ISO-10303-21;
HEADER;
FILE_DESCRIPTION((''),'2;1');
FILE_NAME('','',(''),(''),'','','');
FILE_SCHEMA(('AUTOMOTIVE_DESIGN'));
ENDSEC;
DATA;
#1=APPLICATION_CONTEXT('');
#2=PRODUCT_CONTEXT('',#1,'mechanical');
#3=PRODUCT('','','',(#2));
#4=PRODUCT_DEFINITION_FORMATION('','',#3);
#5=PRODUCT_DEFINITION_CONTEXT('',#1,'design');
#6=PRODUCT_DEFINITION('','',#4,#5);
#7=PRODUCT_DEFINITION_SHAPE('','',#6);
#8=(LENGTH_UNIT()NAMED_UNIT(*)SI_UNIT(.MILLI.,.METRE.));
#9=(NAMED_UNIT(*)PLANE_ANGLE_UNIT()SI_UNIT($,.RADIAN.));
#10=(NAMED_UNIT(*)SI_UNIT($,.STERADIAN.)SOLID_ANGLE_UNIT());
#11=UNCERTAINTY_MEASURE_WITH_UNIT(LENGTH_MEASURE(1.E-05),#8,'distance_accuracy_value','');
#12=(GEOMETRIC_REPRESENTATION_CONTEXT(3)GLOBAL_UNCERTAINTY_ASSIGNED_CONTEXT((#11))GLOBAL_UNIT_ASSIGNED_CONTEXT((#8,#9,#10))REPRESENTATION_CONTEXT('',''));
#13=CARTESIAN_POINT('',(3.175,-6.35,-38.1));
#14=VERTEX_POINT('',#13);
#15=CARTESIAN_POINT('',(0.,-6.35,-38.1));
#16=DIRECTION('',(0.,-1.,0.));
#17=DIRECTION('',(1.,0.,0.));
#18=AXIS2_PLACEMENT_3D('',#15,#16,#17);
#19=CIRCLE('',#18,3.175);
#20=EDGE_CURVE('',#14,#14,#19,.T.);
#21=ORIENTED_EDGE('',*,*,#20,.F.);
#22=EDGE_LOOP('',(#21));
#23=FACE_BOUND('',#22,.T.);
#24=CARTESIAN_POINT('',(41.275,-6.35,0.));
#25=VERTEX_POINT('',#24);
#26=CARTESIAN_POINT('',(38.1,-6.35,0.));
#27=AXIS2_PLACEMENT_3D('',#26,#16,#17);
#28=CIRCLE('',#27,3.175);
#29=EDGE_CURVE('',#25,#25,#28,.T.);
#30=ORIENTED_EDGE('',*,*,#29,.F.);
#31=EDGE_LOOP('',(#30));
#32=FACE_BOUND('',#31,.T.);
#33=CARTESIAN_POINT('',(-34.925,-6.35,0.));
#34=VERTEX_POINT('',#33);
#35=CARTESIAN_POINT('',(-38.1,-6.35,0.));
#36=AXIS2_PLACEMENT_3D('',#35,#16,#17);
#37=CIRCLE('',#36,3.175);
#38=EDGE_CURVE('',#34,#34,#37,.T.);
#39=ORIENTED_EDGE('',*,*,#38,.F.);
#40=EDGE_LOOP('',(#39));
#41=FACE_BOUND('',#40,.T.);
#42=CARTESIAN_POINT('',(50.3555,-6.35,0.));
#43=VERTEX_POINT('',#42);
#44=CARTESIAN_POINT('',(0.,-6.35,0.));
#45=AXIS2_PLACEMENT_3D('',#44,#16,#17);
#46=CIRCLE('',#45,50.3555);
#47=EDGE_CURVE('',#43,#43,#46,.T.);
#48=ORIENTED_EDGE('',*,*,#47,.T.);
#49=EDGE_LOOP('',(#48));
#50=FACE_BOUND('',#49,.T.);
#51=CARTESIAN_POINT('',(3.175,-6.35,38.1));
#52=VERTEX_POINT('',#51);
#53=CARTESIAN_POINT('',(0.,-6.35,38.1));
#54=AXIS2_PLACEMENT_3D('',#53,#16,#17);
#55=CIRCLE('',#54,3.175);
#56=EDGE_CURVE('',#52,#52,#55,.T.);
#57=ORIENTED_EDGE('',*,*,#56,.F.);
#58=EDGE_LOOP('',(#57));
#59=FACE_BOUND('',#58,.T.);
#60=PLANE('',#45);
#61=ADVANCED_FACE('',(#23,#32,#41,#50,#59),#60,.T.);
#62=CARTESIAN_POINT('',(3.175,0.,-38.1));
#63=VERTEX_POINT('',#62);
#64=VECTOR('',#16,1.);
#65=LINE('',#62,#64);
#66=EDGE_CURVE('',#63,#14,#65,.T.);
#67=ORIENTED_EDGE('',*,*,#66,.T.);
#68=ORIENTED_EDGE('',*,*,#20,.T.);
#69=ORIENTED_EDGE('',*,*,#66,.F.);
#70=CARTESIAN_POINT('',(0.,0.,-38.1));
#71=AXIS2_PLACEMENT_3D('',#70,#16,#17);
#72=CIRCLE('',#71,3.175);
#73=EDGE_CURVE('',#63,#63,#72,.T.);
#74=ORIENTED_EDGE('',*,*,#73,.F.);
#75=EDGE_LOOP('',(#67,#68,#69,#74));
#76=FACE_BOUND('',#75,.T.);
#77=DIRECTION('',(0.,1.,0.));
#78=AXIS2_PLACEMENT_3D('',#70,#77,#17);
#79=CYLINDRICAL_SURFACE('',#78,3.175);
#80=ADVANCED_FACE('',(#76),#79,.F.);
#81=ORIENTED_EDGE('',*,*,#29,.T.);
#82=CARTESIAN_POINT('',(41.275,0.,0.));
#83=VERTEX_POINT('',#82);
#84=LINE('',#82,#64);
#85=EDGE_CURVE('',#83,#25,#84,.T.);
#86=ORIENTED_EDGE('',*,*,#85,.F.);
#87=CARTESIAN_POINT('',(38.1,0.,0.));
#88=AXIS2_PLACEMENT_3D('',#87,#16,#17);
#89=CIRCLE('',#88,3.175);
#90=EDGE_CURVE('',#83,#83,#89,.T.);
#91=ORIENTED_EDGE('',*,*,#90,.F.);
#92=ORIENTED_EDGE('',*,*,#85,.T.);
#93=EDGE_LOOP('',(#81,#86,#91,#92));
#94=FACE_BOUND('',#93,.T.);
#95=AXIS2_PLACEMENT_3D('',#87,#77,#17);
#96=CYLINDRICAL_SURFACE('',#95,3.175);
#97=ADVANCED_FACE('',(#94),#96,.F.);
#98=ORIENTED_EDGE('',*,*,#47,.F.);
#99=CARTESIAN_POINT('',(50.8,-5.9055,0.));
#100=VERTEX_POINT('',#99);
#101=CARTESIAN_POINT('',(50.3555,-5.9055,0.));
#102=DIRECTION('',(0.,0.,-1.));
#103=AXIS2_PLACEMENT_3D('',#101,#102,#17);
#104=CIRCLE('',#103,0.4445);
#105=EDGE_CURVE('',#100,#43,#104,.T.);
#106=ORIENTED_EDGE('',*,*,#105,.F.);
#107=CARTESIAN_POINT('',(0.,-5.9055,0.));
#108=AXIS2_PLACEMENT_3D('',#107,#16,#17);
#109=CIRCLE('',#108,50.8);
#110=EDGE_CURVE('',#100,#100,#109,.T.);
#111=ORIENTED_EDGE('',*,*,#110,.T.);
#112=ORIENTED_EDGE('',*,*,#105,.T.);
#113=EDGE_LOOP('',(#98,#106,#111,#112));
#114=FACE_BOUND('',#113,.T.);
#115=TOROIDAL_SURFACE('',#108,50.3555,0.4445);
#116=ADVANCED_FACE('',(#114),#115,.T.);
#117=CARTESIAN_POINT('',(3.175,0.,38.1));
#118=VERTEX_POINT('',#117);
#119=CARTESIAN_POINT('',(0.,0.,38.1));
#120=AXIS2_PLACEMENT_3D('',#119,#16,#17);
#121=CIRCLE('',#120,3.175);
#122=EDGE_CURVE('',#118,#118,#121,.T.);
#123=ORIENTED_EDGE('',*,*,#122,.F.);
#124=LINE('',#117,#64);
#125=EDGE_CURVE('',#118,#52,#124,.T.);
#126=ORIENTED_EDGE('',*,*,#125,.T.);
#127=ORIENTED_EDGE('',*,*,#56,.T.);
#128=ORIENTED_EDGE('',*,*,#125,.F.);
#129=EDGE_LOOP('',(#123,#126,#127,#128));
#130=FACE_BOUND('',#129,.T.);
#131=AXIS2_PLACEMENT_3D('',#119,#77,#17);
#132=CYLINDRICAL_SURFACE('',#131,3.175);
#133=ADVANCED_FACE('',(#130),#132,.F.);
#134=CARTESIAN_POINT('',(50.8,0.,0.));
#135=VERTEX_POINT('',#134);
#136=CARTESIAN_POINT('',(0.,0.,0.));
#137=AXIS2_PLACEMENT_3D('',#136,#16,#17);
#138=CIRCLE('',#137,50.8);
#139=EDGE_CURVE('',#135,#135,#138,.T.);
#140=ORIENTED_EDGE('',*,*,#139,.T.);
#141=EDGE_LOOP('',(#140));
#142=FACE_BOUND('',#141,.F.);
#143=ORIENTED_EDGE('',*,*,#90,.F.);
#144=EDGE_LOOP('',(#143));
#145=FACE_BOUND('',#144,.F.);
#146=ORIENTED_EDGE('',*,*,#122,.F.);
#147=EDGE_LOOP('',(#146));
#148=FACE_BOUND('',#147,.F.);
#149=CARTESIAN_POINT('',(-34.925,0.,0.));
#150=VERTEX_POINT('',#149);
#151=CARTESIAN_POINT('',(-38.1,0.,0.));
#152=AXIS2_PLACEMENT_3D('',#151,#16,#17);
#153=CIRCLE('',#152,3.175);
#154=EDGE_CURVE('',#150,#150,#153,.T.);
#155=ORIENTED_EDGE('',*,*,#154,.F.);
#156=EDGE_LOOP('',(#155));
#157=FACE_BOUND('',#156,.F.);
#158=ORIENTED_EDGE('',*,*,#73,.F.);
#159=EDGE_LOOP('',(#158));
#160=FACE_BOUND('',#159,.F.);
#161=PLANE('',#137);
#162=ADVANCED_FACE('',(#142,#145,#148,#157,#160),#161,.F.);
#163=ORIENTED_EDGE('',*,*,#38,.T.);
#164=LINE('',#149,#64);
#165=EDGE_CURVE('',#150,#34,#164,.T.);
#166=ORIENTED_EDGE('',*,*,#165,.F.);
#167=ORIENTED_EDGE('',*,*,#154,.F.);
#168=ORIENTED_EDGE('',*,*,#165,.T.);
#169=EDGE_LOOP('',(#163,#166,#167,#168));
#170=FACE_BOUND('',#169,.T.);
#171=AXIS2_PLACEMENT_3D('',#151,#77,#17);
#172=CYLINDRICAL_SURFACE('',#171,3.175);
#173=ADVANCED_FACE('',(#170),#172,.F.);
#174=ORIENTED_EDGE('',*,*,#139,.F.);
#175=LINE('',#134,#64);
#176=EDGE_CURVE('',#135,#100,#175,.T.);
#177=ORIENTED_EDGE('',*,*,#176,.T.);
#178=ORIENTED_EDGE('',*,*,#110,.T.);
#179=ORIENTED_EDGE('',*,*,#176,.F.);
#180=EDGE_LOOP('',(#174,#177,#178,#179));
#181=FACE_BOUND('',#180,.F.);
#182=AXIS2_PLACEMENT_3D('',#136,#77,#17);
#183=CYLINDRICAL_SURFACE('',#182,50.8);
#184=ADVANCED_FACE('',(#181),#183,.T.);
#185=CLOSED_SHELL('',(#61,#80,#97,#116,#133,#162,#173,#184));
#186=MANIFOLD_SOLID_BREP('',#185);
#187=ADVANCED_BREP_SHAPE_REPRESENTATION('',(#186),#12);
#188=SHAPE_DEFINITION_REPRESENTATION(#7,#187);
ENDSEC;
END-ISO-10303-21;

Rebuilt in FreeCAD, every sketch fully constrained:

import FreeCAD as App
import Part
import Sketcher
from FreeCAD import Vector
Q = App.Units.Quantity


def edges_at(feature, points):
    """Names of the edges that pass closest to the given points."""
    edges = feature.Shape.Edges
    near = lambda p: min(range(len(edges)), key=lambda i: edges[i].distToShape(Part.Vertex(*p))[0])
    return sorted({f"Edge{near(p) + 1}" for p in points})

doc = App.newDocument("Part")
params = doc.addObject("Spreadsheet::Sheet", "Params")
for row, (alias, value) in enumerate([
    ("sketch1_diameter", "4 in"),
    ("sketch1_diameter2", "0.25 in"),
    ("pad1_length", "0.25 in"),
    ("fillet_radius", "0.0175 in"),
], start=1):
    params.set(f"A{row}", alias)
    params.set(f"B{row}", "=" + value)
    params.setAlias(f"B{row}", alias)

body = doc.addObject("PartDesign::Body", "Body")

# Sketch on XZ plane
sketch1 = doc.addObject("Sketcher::SketchObject", "Sketch")
body.addObject(sketch1)
sketch1.AttachmentSupport = (doc.XZ_Plane, [""])
sketch1.MapMode = "FlatFace"
sketch1.addGeometry(Part.Circle(Vector(0, 0, 0), Vector(0, 0, 1), 50.8), False)
sketch1.addGeometry(Part.Circle(Vector(0, -38.1, 0), Vector(0, 0, 1), 3.2), False)
sketch1.addGeometry(Part.Circle(Vector(-38.1, 0, 0), Vector(0, 0, 1), 3.2), False)
sketch1.addGeometry(Part.Circle(Vector(38.1, 0, 0), Vector(0, 0, 1), 3.2), False)
sketch1.addGeometry(Part.Circle(Vector(0, 38.1, 0), Vector(0, 0, 1), 3.2), False)
sketch1.addConstraint(Sketcher.Constraint("Coincident", 0, 3, -1, 1))
sketch1.addConstraint(Sketcher.Constraint("Equal", 1, 2))
sketch1.addConstraint(Sketcher.Constraint("Equal", 2, 3))
sketch1.addConstraint(Sketcher.Constraint("Equal", 3, 4))
sketch1.addConstraint(Sketcher.Constraint("Symmetric", 2, 3, 3, 3, -1, 1))
sketch1.addConstraint(Sketcher.Constraint("Symmetric", 1, 3, 4, 3, -1, 1))
sketch1.addConstraint(Sketcher.Constraint("PointOnObject", 1, 3, -2))
sketch1.addConstraint(Sketcher.Constraint("PointOnObject", 2, 3, -1))
sketch1.addConstraint(Sketcher.Constraint("Diameter", 0, Q("4 in")))
sketch1.addConstraint(Sketcher.Constraint("Diameter", 1, Q("0.25 in")))
sketch1.addConstraint(Sketcher.Constraint("DistanceX", 2, 3, 3, 3, Q("3 in")))
sketch1.addConstraint(Sketcher.Constraint("DistanceY", 1, 3, 4, 3, Q("3 in")))
sketch1.setExpression("Constraints[8]", "Params.sketch1_diameter")
sketch1.setExpression("Constraints[9]", "Params.sketch1_diameter2")
pad1 = doc.addObject("PartDesign::Pad", "Pad")
body.addObject(pad1)
pad1.Profile = sketch1
pad1.setExpression("Length", "Params.pad1_length")
doc.recompute()

fillet = doc.addObject("PartDesign::Fillet", "Fillet")
body.addObject(fillet)
fillet.Base = (pad1, edges_at(pad1, [(-50.8, -6.35, 0)]))
fillet.setExpression("Radius", "Params.fillet_radius")

doc.recompute()
